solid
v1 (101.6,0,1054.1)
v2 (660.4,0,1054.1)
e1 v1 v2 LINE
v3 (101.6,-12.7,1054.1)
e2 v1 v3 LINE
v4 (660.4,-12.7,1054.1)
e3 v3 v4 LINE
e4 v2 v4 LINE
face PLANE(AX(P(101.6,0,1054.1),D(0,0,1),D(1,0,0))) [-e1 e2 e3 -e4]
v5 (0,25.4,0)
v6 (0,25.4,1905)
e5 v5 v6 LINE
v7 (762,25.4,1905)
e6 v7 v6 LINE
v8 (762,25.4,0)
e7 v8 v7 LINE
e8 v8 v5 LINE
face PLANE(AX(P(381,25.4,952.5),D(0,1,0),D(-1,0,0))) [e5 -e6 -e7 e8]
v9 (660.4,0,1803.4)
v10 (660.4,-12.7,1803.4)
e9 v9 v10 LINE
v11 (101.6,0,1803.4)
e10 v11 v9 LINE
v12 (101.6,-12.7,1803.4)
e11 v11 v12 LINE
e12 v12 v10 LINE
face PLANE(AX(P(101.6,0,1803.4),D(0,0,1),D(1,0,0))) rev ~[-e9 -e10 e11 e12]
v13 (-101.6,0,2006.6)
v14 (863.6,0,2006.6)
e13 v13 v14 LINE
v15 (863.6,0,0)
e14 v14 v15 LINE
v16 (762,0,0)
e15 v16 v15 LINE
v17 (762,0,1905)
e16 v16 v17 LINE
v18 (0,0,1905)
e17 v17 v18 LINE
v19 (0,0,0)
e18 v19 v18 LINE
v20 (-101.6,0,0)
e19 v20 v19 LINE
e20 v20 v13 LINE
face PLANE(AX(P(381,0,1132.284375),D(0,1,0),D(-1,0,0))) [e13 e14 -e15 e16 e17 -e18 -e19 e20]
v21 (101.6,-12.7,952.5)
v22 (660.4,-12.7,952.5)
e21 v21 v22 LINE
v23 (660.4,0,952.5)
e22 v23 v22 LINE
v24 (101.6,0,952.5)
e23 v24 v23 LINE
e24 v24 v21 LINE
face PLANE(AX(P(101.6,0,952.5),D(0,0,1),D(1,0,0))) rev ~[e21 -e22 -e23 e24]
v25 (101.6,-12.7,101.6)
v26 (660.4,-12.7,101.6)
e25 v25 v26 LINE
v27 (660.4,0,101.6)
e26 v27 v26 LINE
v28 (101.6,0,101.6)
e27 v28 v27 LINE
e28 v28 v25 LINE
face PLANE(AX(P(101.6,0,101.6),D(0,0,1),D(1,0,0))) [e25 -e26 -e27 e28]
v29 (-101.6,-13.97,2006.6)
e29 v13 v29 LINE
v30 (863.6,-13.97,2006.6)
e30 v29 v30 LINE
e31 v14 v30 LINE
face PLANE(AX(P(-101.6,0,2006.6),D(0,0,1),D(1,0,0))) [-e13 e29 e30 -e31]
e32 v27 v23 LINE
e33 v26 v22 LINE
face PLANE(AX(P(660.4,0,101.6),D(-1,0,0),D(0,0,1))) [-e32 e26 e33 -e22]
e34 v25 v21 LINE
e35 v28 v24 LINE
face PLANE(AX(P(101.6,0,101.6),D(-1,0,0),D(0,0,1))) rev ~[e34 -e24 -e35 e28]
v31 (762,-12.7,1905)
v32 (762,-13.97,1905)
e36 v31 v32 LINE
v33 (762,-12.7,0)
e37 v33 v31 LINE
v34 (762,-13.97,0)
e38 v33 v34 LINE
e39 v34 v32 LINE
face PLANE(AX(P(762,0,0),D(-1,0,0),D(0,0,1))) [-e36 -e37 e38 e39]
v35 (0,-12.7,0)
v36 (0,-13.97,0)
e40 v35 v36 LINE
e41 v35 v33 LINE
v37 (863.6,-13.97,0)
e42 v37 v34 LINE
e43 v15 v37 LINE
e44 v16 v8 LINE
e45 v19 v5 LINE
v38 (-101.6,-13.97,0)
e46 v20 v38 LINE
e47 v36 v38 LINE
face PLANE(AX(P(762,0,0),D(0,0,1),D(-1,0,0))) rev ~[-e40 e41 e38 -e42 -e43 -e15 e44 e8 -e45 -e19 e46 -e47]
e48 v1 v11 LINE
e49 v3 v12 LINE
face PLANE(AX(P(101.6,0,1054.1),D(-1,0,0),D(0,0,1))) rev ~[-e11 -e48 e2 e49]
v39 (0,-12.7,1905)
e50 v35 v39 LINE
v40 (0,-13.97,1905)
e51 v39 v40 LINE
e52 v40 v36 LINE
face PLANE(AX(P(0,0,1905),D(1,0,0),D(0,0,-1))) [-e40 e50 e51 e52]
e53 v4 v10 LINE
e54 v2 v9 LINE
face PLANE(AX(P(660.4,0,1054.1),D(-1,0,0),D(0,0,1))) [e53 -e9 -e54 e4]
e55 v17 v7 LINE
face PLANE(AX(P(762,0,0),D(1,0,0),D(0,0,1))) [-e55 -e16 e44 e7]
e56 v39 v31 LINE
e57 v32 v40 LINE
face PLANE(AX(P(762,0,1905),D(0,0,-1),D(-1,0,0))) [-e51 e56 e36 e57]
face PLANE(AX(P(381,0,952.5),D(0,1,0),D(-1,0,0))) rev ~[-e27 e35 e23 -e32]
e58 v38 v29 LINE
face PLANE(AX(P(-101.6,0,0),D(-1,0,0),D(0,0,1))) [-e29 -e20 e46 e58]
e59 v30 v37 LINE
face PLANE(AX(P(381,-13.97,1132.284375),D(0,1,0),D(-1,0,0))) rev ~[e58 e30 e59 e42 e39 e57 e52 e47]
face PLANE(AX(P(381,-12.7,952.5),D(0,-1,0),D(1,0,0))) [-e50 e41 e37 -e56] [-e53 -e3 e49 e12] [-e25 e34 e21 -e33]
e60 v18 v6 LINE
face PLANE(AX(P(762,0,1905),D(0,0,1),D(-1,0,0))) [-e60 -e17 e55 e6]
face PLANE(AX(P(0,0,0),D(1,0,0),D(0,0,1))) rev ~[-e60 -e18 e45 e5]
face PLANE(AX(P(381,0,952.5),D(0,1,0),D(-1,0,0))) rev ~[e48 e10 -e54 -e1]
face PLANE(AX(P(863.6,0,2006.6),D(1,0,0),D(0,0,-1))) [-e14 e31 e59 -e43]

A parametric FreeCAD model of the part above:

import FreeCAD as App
import Part
import Sketcher
from FreeCAD import Vector
Q = App.Units.Quantity

doc = App.newDocument("Part")
body = doc.addObject("PartDesign::Body", "Body")

sketch1 = body.newObject("Sketcher::SketchObject", "Sketch")
sketch1.AttachmentSupport = (doc.getObject("XZ_Plane"), [""])
sketch1.MapMode = "FlatFace"
sketch1.addGeometry([
    Part.LineSegment(Vector(0, 1905, 0), Vector(0, 0, 0)),
    Part.LineSegment(Vector(0, 0, 0), Vector(762, 0, 0)),
    Part.LineSegment(Vector(762, 0, 0), Vector(762, 1905, 0)),
    Part.LineSegment(Vector(762, 1905, 0), Vector(0, 1905, 0)),
    Part.LineSegment(Vector(660, 102, 0), Vector(102, 102, 0)),
    Part.LineSegment(Vector(102, 102, 0), Vector(102, 952, 0)),
    Part.LineSegment(Vector(102, 952, 0), Vector(660, 952, 0)),
    Part.LineSegment(Vector(660, 952, 0), Vector(660, 102, 0)),
    Part.LineSegment(Vector(660, 1054, 0), Vector(102, 1054, 0)),
    Part.LineSegment(Vector(102, 1054, 0), Vector(102, 1803, 0)),
    Part.LineSegment(Vector(102, 1803, 0), Vector(660, 1803, 0)),
    Part.LineSegment(Vector(660, 1803, 0), Vector(660, 1054, 0)),
], False)
sketch1.addConstraint([
    Sketcher.Constraint("Coincident", 0, 2, 1, 1),
    Sketcher.Constraint("Coincident", 1, 2, 2, 1),
    Sketcher.Constraint("Coincident", 2, 2, 3, 1),
    Sketcher.Constraint("Coincident", 3, 2, 0, 1),
    Sketcher.Constraint("Coincident", 4, 2, 5, 1),
    Sketcher.Constraint("Coincident", 5, 2, 6, 1),
    Sketcher.Constraint("Coincident", 6, 2, 7, 1),
    Sketcher.Constraint("Coincident", 7, 2, 4, 1),
    Sketcher.Constraint("Coincident", 8, 2, 9, 1),
    Sketcher.Constraint("Coincident", 9, 2, 10, 1),
    Sketcher.Constraint("Coincident", 10, 2, 11, 1),
    Sketcher.Constraint("Coincident", 11, 2, 8, 1),
    Sketcher.Constraint("Vertical", 0),
    Sketcher.Constraint("Horizontal", 1),
    Sketcher.Constraint("Vertical", 2),
    Sketcher.Constraint("Horizontal", 3),
    Sketcher.Constraint("Horizontal", 4),
    Sketcher.Constraint("Vertical", 5),
    Sketcher.Constraint("Horizontal", 6),
    Sketcher.Constraint("Vertical", 7),
    Sketcher.Constraint("Horizontal", 8),
    Sketcher.Constraint("Vertical", 9),
    Sketcher.Constraint("Horizontal", 10),
    Sketcher.Constraint("Vertical", 11),
    Sketcher.Constraint("Coincident", 0, 2, -1, 1),
    Sketcher.Constraint("Vertical", 5, 2, 8, 2),
    Sketcher.Constraint("Vertical", 7, 2, 10, 2),
    Sketcher.Constraint("DistanceX", 1, 1, 1, 2, Q("30 in")),
    Sketcher.Constraint("DistanceX", 4, 2, 4, 1, Q("22 in")),
    Sketcher.Constraint("DistanceY", 0, 2, 0, 1, Q("75 in")),
    Sketcher.Constraint("DistanceY", 5, 1, 5, 2, Q("33.5 in")),
    Sketcher.Constraint("DistanceY", 9, 1, 9, 2, Q("29.5 in")),
    Sketcher.Constraint("DistanceX", -1, 1, 4, 2, Q("4 in")),
    Sketcher.Constraint("DistanceY", -1, 1, 4, 2, Q("4 in")),
    Sketcher.Constraint("DistanceY", -1, 1, 9, 2, Q("71 in")),
])
pad1 = body.newObject("PartDesign::Pad", "Pad")
pad1.Profile = sketch1
pad1.Length = Q("0.5 in")

sketch2 = body.newObject("Sketcher::SketchObject", "Sketch001")
sketch2.AttachmentSupport = (doc.getObject("XZ_Plane"), [""])
sketch2.MapMode = "FlatFace"
sketch2.addGeometry([
    Part.LineSegment(Vector(0, 1905, 0), Vector(0, 0, 0)),
    Part.LineSegment(Vector(0, 0, 0), Vector(-102, 0, 0)),
    Part.LineSegment(Vector(-102, 0, 0), Vector(-102, 2007, 0)),
    Part.LineSegment(Vector(-102, 2007, 0), Vector(864, 2007, 0)),
    Part.LineSegment(Vector(864, 2007, 0), Vector(864, 0, 0)),
    Part.LineSegment(Vector(864, 0, 0), Vector(762, 0, 0)),
    Part.LineSegment(Vector(762, 0, 0), Vector(762, 1905, 0)),
    Part.LineSegment(Vector(762, 1905, 0), Vector(0, 1905, 0)),
], False)
sketch2.addConstraint([
    Sketcher.Constraint("Coincident", 0, 2, 1, 1),
    Sketcher.Constraint("Coincident", 1, 2, 2, 1),
    Sketcher.Constraint("Coincident", 2, 2, 3, 1),
    Sketcher.Constraint("Coincident", 3, 2, 4, 1),
    Sketcher.Constraint("Coincident", 4, 2, 5, 1),
    Sketcher.Constraint("Coincident", 5, 2, 6, 1),
    Sketcher.Constraint("Coincident", 6, 2, 7, 1),
    Sketcher.Constraint("Coincident", 7, 2, 0, 1),
    Sketcher.Constraint("Vertical", 0),
    Sketcher.Constraint("Horizontal", 1),
    Sketcher.Constraint("Vertical", 2),
    Sketcher.Constraint("Horizontal", 3),
    Sketcher.Constraint("Vertical", 4),
    Sketcher.Constraint("Horizontal", 5),
    Sketcher.Constraint("Vertical", 6),
    Sketcher.Constraint("Horizontal", 7),
    Sketcher.Constraint("Coincident", 0, 2, -1, 1),
    Sketcher.Constraint("PointOnObject", 4, 2, -1),
    Sketcher.Constraint("Equal", 1, 5),
    Sketcher.Constraint("DistanceX", 1, 2, 1, 1, Q("4 in")),
    Sketcher.Constraint("DistanceX", 3, 1, 3, 2, Q("38 in")),
    Sketcher.Constraint("DistanceY", 0, 2, 0, 1, Q("75 in")),
    Sketcher.Constraint("DistanceY", 2, 1, 2, 2, Q("79 in")),
])
pad2 = body.newObject("PartDesign::Pad", "Pad001")
pad2.Profile = sketch2
pad2.Length = Q("0.55 in")

sketch3 = body.newObject("Sketcher::SketchObject", "Sketch002")
sketch3.AttachmentSupport = (doc.getObject("XZ_Plane"), [""])
sketch3.MapMode = "FlatFace"
sketch3.addGeometry([
    Part.LineSegment(Vector(762, 1905, 0), Vector(762, 0, 0)),
    Part.LineSegment(Vector(762, 0, 0), Vector(0, 0, 0)),
    Part.LineSegment(Vector(0, 0, 0), Vector(0, 1905, 0)),
    Part.LineSegment(Vector(0, 1905, 0), Vector(762, 1905, 0)),
], False)
sketch3.addConstraint([
    Sketcher.Constraint("Coincident", 0, 2, 1, 1),
    Sketcher.Constraint("Coincident", 1, 2, 2, 1),
    Sketcher.Constraint("Coincident", 2, 2, 3, 1),
    Sketcher.Constraint("Coincident", 3, 2, 0, 1),
    Sketcher.Constraint("Vertical", 0),
    Sketcher.Constraint("Horizontal", 1),
    Sketcher.Constraint("Vertical", 2),
    Sketcher.Constraint("Horizontal", 3),
    Sketcher.Constraint("Coincident", 1, 2, -1, 1),
    Sketcher.Constraint("DistanceX", 1, 2, 1, 1, Q("30 in")),
    Sketcher.Constraint("DistanceY", 0, 2, 0, 1, Q("75 in")),
])
pad3 = body.newObject("PartDesign::Pad", "Pad002")
pad3.Profile = sketch3
pad3.Length = Q("1 in")
pad3.Reversed = True

doc.recompute()
